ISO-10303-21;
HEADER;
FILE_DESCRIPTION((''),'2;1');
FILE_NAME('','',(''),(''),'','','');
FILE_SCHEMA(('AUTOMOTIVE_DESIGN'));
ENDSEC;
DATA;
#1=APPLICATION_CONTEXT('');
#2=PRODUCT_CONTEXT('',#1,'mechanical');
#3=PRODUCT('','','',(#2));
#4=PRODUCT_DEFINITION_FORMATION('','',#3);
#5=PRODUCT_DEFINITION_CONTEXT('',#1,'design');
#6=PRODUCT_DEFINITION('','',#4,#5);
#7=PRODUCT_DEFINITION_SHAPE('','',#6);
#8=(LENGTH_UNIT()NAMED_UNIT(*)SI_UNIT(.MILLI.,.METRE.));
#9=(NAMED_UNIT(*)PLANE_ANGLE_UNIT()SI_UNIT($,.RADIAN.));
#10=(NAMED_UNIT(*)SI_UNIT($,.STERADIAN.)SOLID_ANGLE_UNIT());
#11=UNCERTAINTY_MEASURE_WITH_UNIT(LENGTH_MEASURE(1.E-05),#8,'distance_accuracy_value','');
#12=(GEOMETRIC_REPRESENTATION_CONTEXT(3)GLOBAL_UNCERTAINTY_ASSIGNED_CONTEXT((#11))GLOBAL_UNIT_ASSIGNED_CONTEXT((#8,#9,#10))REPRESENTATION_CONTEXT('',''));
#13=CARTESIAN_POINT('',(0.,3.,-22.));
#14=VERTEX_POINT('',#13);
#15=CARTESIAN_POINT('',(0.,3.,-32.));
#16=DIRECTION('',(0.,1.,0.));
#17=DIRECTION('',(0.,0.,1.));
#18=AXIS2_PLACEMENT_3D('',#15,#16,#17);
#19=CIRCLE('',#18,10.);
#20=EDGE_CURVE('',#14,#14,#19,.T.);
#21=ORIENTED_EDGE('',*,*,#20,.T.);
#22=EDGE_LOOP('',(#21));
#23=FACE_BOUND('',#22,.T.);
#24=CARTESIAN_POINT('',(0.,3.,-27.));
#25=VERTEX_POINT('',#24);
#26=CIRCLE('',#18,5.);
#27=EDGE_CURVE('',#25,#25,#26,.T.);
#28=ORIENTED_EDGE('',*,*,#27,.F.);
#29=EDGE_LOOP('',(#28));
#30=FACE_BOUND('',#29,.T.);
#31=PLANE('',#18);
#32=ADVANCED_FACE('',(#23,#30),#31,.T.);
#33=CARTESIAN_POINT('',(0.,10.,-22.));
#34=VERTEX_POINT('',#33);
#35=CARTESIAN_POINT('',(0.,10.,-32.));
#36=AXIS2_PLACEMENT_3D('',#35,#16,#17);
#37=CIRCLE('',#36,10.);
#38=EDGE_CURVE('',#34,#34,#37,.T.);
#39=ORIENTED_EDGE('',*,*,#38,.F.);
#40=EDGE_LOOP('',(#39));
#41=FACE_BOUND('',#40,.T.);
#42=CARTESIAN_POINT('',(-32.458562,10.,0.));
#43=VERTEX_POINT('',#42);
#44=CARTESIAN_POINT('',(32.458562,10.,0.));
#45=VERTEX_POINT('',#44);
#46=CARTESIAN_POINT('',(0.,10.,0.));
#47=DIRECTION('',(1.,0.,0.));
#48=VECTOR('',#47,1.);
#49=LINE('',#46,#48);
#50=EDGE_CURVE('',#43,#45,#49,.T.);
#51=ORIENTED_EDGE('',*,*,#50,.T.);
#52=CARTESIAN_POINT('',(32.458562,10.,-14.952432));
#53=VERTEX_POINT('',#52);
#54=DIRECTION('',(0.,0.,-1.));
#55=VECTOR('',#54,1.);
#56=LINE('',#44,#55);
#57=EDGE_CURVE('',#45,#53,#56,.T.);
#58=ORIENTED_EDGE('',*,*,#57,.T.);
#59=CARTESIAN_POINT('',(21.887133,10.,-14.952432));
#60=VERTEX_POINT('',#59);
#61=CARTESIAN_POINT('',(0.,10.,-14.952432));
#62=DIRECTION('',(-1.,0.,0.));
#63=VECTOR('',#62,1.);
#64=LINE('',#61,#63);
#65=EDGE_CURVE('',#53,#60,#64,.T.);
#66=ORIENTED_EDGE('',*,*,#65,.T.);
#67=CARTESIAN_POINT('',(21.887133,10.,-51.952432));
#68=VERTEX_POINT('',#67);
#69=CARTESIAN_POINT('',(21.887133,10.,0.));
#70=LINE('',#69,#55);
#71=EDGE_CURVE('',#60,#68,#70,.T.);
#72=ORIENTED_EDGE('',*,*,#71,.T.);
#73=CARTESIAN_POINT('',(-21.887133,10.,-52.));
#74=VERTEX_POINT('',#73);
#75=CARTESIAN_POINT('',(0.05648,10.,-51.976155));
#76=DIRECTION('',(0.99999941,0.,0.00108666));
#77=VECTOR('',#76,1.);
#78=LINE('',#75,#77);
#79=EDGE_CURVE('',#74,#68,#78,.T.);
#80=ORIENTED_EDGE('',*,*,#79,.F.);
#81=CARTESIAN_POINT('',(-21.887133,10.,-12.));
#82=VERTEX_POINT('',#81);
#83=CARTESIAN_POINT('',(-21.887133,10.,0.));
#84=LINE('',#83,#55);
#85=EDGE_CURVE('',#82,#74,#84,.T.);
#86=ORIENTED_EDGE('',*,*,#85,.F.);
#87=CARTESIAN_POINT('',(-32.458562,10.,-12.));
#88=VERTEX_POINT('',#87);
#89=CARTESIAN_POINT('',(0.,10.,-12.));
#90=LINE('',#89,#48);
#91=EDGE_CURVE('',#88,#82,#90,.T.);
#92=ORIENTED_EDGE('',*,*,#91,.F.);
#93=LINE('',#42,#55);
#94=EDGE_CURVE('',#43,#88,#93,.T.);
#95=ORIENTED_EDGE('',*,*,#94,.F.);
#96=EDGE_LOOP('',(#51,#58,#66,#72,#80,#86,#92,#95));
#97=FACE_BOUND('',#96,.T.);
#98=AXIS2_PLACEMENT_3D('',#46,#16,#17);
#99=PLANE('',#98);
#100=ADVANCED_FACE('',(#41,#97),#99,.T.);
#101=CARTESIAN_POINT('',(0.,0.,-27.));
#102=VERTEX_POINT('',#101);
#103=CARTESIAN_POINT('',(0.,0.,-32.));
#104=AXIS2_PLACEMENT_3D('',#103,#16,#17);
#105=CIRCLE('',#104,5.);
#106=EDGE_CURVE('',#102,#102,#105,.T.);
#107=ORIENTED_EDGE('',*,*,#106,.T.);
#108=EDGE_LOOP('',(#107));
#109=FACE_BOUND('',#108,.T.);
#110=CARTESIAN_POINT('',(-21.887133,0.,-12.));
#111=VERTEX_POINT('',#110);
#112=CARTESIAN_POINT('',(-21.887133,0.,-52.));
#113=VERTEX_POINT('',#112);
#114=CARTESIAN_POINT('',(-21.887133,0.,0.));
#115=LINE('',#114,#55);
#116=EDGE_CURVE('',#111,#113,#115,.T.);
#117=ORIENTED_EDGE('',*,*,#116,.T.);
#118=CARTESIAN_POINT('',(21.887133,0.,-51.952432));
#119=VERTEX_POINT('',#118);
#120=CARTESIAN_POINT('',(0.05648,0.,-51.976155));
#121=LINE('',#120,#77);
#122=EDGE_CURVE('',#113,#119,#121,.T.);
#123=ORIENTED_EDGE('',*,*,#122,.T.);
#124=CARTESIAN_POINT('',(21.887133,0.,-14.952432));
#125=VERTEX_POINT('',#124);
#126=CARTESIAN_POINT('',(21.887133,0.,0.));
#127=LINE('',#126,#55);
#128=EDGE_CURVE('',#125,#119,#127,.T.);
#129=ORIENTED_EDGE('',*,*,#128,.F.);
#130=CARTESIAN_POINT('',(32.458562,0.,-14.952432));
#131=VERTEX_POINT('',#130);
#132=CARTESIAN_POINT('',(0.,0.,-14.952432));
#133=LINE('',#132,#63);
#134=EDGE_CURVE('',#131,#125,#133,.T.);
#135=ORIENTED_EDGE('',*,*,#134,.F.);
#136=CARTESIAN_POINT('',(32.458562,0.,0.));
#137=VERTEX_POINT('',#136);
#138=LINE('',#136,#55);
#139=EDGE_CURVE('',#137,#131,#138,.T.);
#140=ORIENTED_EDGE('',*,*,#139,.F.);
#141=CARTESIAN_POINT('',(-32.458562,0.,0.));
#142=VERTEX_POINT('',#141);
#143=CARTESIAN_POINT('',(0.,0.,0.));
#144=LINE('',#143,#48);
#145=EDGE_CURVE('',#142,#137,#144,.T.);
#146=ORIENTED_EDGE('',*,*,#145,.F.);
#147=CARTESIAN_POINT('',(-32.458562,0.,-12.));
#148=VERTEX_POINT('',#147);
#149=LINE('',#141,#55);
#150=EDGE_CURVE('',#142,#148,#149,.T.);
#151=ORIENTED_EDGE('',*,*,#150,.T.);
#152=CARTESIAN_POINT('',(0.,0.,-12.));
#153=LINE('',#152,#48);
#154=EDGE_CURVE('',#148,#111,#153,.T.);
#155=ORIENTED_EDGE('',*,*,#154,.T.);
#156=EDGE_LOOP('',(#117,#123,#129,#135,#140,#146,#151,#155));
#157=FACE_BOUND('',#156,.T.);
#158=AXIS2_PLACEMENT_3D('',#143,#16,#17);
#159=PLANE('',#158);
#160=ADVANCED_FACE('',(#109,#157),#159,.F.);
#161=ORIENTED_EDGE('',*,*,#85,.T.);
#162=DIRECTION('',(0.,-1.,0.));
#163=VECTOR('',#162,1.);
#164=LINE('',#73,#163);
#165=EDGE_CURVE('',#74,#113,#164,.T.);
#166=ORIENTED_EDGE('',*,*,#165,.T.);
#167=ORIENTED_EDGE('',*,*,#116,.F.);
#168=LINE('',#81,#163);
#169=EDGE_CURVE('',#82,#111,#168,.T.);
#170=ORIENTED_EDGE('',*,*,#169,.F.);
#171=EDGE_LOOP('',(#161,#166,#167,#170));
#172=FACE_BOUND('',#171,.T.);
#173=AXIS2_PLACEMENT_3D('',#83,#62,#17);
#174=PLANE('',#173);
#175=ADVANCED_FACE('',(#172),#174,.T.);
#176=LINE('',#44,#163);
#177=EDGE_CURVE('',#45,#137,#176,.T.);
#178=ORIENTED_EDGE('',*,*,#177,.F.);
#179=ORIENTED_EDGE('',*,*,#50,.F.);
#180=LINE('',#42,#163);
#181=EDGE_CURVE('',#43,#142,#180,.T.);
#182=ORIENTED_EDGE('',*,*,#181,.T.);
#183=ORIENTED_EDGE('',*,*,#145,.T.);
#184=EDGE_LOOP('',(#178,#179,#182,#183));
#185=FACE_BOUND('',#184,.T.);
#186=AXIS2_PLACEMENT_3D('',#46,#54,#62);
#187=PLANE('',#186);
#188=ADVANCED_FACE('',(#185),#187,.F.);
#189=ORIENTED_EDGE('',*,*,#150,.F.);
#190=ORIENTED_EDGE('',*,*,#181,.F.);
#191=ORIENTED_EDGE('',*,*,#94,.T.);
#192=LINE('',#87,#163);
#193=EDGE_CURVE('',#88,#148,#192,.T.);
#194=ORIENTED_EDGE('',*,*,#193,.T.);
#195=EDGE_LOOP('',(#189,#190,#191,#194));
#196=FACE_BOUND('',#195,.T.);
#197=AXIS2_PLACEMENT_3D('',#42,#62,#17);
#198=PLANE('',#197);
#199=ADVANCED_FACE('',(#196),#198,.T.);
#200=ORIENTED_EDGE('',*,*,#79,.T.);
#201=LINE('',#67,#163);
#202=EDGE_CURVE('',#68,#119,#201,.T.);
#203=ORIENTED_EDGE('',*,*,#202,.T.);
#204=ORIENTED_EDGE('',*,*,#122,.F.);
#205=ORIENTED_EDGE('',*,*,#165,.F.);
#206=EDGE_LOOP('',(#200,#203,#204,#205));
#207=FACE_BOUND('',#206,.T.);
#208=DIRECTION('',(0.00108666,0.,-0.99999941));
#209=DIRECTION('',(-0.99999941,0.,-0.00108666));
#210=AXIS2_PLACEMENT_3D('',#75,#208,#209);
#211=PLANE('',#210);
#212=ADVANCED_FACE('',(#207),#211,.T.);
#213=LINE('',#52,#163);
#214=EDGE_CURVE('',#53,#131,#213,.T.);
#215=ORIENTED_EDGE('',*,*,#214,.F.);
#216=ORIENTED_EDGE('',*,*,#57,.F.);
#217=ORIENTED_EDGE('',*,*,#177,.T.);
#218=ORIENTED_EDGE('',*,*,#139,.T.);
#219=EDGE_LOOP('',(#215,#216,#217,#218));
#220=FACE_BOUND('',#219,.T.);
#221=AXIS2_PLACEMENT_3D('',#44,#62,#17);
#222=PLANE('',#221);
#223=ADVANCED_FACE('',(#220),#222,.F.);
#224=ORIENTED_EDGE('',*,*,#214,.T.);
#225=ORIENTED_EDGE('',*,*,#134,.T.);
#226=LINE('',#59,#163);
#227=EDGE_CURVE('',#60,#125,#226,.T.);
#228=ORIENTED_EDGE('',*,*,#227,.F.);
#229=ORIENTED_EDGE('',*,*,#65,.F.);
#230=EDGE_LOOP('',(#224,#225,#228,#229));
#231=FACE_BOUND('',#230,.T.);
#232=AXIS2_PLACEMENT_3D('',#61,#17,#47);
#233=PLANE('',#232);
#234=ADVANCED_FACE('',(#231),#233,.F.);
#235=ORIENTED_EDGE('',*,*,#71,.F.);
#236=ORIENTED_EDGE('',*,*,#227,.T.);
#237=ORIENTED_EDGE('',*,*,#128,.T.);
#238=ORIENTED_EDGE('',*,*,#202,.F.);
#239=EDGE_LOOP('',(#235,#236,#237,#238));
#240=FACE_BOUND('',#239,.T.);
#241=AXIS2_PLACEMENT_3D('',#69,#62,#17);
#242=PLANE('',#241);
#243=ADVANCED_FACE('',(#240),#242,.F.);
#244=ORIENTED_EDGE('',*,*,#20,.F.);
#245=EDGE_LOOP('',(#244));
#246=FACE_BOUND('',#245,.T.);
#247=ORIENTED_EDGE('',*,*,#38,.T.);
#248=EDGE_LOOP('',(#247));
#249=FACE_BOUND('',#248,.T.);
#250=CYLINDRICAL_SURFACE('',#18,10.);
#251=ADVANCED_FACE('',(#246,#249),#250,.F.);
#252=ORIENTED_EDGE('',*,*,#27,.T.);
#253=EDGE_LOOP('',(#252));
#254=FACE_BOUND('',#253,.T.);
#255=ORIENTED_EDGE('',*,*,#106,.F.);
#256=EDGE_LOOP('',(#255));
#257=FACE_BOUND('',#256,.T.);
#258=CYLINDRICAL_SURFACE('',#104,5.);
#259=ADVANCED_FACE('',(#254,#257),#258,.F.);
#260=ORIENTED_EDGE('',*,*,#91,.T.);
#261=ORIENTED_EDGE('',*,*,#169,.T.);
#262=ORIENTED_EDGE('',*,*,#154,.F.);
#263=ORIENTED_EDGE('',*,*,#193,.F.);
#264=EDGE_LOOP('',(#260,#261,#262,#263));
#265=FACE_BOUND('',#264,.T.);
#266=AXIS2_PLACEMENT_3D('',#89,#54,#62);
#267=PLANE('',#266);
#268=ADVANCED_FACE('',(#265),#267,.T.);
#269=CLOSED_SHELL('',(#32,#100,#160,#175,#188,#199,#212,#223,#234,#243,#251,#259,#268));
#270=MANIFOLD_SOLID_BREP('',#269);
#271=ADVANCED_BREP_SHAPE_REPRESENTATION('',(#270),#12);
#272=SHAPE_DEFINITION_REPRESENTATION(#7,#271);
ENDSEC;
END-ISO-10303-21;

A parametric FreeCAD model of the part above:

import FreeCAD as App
import Part
import Sketcher

V = App.Vector


def add_polygon(sketch, points):
    """Adds a closed chain of lines whose ends are joined by coincident constraints."""
    first, n = sketch.GeometryCount, len(points)
    for a, b in zip(points, points[1:] + points[:1]):
        sketch.addGeometry(Part.LineSegment(App.Vector(*a, 0), App.Vector(*b, 0)), False)
    for i in range(n):
        sketch.addConstraint(Sketcher.Constraint("Coincident", first + i, 2, first + (i + 1) % n, 1))

doc = App.newDocument("Part")
body = doc.addObject("PartDesign::Body", "Body")

sketch1 = body.newObject("Sketcher::SketchObject", "Sketch")
sketch1.AttachmentSupport = (doc.getObject("XZ_Plane"), [""])
sketch1.MapMode = "FlatFace"
add_polygon(sketch1, [(22, -52), (-22, -52), (-22, -12), (-32, -12), (-32, 0), (32, 0), (32, -15), (22, -15)])
sketch1.addConstraint(Sketcher.Constraint("Vertical", 1))
sketch1.addConstraint(Sketcher.Constraint("Horizontal", 2))
sketch1.addConstraint(Sketcher.Constraint("Vertical", 3))
sketch1.addConstraint(Sketcher.Constraint("Horizontal", 4))
sketch1.addConstraint(Sketcher.Constraint("Vertical", 5))
sketch1.addConstraint(Sketcher.Constraint("Horizontal", 6))
sketch1.addConstraint(Sketcher.Constraint("Vertical", 7))
sketch1.addConstraint(Sketcher.Constraint("Symmetric", 3, 2, 4, 2, -1, 1))
sketch1.addConstraint(Sketcher.Constraint("Equal", 2, 6))
sketch1.addConstraint(Sketcher.Constraint("DistanceY", 1, 1, 1, 2, 40.0))
sketch1.addConstraint(Sketcher.Constraint("DistanceY", 3, 1, 3, 2, 12.0))
sketch1.addConstraint(Sketcher.Constraint("DistanceY", 7, 2, 7, 1, 37.0))
sketch1.addConstraint(Sketcher.Constraint("DistanceX", 2, 2, 2, 1, 10.571429))
sketch1.addConstraint(Sketcher.Constraint("DistanceX", 4, 1, 4, 2, 64.917124))
sketch1.addConstraint(Sketcher.Constraint("DistanceY", 5, 2, 5, 1, 14.952432))
pad1 = body.newObject("PartDesign::Pad", "Pad")
pad1.Profile = sketch1
pad1.Length = 10
pad1.Reversed = True

sketch2 = body.newObject("Sketcher::SketchObject", "Sketch001")
sketch2.AttachmentSupport = (doc.getObject("XZ_Plane"), [""])
sketch2.MapMode = "FlatFace"
sketch2.AttachmentOffset = App.Placement(V(0, 0, -10), App.Rotation())
sketch2.addGeometry(Part.Circle(V(0, -32, 0), V(0, 0, 1), 10), False)
sketch2.addConstraint(Sketcher.Constraint("PointOnObject", 0, 3, -2))
sketch2.addConstraint(Sketcher.Constraint("Diameter", 0, 20.0))
sketch2.addConstraint(Sketcher.Constraint("DistanceY", 0, 3, -1, 1, 32.0))
pocket1 = body.newObject("PartDesign::Pocket", "Pocket")
pocket1.Profile = sketch2
pocket1.Length = 7
pocket1.Reversed = True

sketch3 = body.newObject("Sketcher::SketchObject", "Sketch002")
sketch3.AttachmentSupport = (doc.getObject("XZ_Plane"), [""])
sketch3.MapMode = "FlatFace"
sketch3.AttachmentOffset = App.Placement(V(0, 0, -3), App.Rotation())
sketch3.addGeometry(Part.Circle(V(0, -32, 0), V(0, 0, 1), 5), False)
sketch3.addConstraint(Sketcher.Constraint("PointOnObject", 0, 3, -2))
sketch3.addConstraint(Sketcher.Constraint("Diameter", 0, 10.0))
sketch3.addConstraint(Sketcher.Constraint("DistanceY", 0, 3, -1, 1, 32.0))
pocket2 = body.newObject("PartDesign::Pocket", "Pocket001")
pocket2.Profile = sketch3
pocket2.Type = "ThroughAll"
pocket2.Reversed = True

doc.recompute()
